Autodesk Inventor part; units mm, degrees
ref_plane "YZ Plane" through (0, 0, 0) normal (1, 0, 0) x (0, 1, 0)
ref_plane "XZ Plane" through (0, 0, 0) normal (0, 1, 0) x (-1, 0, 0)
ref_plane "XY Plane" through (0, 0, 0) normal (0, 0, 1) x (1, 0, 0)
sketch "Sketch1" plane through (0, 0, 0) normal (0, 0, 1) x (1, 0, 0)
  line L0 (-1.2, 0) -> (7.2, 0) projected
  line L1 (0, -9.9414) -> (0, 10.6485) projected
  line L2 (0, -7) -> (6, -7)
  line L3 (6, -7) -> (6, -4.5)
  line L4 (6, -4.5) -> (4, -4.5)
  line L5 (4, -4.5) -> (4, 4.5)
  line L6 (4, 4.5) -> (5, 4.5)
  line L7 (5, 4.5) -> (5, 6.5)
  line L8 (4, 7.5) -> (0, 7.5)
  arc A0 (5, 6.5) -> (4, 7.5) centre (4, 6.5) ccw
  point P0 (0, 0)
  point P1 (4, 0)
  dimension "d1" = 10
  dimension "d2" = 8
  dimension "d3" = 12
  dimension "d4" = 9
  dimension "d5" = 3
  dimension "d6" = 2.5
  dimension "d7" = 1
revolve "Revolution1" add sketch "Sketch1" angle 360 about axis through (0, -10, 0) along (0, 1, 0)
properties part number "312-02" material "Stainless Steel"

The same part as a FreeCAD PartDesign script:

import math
import FreeCAD as App
import Part
import Sketcher

V = App.Vector
Q = App.Units.Quantity

doc = App.newDocument("Part")
body = doc.addObject("PartDesign::Body", "Body")

# Sketch on XY plane
sketch1 = body.newObject("Sketcher::SketchObject", "Sketch")
sketch1.AttachmentSupport = (doc.getObject("XY_Plane"), [""])
sketch1.MapMode = "FlatFace"
sketch1.addGeometry(Part.LineSegment(V(0, 7.5, 0), V(0, -7, 0)), False)
sketch1.addGeometry(Part.LineSegment(V(0, -7, 0), V(6, -7, 0)), False)
sketch1.addGeometry(Part.LineSegment(V(6, -7, 0), V(6, -4.5, 0)), False)
sketch1.addGeometry(Part.LineSegment(V(6, -4.5, 0), V(4, -4.5, 0)), False)
sketch1.addGeometry(Part.LineSegment(V(4, -4.5, 0), V(4, 4.5, 0)), False)
sketch1.addGeometry(Part.LineSegment(V(4, 4.5, 0), V(5, 4.5, 0)), False)
sketch1.addGeometry(Part.LineSegment(V(5, 4.5, 0), V(5, 6.5, 0)), False)
sketch1.addGeometry(Part.ArcOfCircle(Part.Circle(V(4, 6.5, 0), V(0, 0, 1), 1), math.radians(0), math.radians(90)), False)
sketch1.addGeometry(Part.LineSegment(V(4, 7.5, 0), V(0, 7.5, 0)), False)
sketch1.addConstraint(Sketcher.Constraint("Coincident", 0, 2, 1, 1))
sketch1.addConstraint(Sketcher.Constraint("Coincident", 1, 2, 2, 1))
sketch1.addConstraint(Sketcher.Constraint("Coincident", 2, 2, 3, 1))
sketch1.addConstraint(Sketcher.Constraint("Coincident", 3, 2, 4, 1))
sketch1.addConstraint(Sketcher.Constraint("Coincident", 4, 2, 5, 1))
sketch1.addConstraint(Sketcher.Constraint("Coincident", 5, 2, 6, 1))
sketch1.addConstraint(Sketcher.Constraint("Tangent", 6, 2, 7, 1))
sketch1.addConstraint(Sketcher.Constraint("Tangent", 7, 2, 8, 1))
sketch1.addConstraint(Sketcher.Constraint("Coincident", 8, 2, 0, 1))
sketch1.addConstraint(Sketcher.Constraint("Vertical", 0))
sketch1.addConstraint(Sketcher.Constraint("Horizontal", 1))
sketch1.addConstraint(Sketcher.Constraint("Vertical", 2))
sketch1.addConstraint(Sketcher.Constraint("Horizontal", 3))
sketch1.addConstraint(Sketcher.Constraint("Vertical", 4))
sketch1.addConstraint(Sketcher.Constraint("Horizontal", 5))
sketch1.addConstraint(Sketcher.Constraint("Vertical", 6))
sketch1.addConstraint(Sketcher.Constraint("Horizontal", 8))
sketch1.addConstraint(Sketcher.Constraint("PointOnObject", 0, 2, -2))
sketch1.addConstraint(Sketcher.Constraint("Vertical", 7, 3, 3, 2))
sketch1.addConstraint(Sketcher.Constraint("Equal", 3, 6))
sketch1.addConstraint(Sketcher.Constraint("Radius", 7, Q("1 mm")))
sketch1.addConstraint(Sketcher.Constraint("DistanceY", 4, 1, 4, 2, Q("9 mm")))
sketch1.addConstraint(Sketcher.Constraint("DistanceY", 2, 1, 2, 2, Q("2.5 mm")))
sketch1.addConstraint(Sketcher.Constraint("DistanceX", 5, 2, 2, 2, Q("1 mm")))
sketch1.addConstraint(Sketcher.Constraint("DistanceX", 1, 1, 1, 2, Q("6 mm")))
sketch1.addConstraint(Sketcher.Constraint("DistanceY", 0, 2, -1, 1, Q("7 mm")))
revolution = body.newObject("PartDesign::Revolution", "Revolution")
revolution.Profile = sketch1
revolution.ReferenceAxis = (sketch1, ["V_Axis"])
revolution.Angle = 360

doc.recompute()
